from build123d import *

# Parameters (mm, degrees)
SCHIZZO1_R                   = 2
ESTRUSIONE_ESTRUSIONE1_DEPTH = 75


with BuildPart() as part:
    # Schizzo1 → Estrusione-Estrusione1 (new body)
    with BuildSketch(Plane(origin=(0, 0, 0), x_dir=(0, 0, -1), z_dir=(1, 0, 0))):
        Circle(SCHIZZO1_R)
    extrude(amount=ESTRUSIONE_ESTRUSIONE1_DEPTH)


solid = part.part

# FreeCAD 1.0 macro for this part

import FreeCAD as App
import Part
import Sketcher
from FreeCAD import Vector
Q = App.Units.Quantity

doc = App.newDocument("Part")
body = doc.addObject("PartDesign::Body", "Body")

sketch1 = body.newObject("Sketcher::SketchObject", "Sketch")
sketch1.AttachmentSupport = (doc.getObject("YZ_Plane"), [""])
sketch1.MapMode = "FlatFace"
sketch1.addGeometry(Part.Circle(Vector(0, 0, 0), Vector(0, 0, 1), 2), False)
sketch1.addConstraint([
    Sketcher.Constraint("Coincident", 0, 3, -1, 1),
    Sketcher.Constraint("Diameter", 0, Q("4 mm")),
])
pad1 = body.newObject("PartDesign::Pad", "Pad")
pad1.Profile = sketch1
pad1.Length = 75

doc.recompute()
